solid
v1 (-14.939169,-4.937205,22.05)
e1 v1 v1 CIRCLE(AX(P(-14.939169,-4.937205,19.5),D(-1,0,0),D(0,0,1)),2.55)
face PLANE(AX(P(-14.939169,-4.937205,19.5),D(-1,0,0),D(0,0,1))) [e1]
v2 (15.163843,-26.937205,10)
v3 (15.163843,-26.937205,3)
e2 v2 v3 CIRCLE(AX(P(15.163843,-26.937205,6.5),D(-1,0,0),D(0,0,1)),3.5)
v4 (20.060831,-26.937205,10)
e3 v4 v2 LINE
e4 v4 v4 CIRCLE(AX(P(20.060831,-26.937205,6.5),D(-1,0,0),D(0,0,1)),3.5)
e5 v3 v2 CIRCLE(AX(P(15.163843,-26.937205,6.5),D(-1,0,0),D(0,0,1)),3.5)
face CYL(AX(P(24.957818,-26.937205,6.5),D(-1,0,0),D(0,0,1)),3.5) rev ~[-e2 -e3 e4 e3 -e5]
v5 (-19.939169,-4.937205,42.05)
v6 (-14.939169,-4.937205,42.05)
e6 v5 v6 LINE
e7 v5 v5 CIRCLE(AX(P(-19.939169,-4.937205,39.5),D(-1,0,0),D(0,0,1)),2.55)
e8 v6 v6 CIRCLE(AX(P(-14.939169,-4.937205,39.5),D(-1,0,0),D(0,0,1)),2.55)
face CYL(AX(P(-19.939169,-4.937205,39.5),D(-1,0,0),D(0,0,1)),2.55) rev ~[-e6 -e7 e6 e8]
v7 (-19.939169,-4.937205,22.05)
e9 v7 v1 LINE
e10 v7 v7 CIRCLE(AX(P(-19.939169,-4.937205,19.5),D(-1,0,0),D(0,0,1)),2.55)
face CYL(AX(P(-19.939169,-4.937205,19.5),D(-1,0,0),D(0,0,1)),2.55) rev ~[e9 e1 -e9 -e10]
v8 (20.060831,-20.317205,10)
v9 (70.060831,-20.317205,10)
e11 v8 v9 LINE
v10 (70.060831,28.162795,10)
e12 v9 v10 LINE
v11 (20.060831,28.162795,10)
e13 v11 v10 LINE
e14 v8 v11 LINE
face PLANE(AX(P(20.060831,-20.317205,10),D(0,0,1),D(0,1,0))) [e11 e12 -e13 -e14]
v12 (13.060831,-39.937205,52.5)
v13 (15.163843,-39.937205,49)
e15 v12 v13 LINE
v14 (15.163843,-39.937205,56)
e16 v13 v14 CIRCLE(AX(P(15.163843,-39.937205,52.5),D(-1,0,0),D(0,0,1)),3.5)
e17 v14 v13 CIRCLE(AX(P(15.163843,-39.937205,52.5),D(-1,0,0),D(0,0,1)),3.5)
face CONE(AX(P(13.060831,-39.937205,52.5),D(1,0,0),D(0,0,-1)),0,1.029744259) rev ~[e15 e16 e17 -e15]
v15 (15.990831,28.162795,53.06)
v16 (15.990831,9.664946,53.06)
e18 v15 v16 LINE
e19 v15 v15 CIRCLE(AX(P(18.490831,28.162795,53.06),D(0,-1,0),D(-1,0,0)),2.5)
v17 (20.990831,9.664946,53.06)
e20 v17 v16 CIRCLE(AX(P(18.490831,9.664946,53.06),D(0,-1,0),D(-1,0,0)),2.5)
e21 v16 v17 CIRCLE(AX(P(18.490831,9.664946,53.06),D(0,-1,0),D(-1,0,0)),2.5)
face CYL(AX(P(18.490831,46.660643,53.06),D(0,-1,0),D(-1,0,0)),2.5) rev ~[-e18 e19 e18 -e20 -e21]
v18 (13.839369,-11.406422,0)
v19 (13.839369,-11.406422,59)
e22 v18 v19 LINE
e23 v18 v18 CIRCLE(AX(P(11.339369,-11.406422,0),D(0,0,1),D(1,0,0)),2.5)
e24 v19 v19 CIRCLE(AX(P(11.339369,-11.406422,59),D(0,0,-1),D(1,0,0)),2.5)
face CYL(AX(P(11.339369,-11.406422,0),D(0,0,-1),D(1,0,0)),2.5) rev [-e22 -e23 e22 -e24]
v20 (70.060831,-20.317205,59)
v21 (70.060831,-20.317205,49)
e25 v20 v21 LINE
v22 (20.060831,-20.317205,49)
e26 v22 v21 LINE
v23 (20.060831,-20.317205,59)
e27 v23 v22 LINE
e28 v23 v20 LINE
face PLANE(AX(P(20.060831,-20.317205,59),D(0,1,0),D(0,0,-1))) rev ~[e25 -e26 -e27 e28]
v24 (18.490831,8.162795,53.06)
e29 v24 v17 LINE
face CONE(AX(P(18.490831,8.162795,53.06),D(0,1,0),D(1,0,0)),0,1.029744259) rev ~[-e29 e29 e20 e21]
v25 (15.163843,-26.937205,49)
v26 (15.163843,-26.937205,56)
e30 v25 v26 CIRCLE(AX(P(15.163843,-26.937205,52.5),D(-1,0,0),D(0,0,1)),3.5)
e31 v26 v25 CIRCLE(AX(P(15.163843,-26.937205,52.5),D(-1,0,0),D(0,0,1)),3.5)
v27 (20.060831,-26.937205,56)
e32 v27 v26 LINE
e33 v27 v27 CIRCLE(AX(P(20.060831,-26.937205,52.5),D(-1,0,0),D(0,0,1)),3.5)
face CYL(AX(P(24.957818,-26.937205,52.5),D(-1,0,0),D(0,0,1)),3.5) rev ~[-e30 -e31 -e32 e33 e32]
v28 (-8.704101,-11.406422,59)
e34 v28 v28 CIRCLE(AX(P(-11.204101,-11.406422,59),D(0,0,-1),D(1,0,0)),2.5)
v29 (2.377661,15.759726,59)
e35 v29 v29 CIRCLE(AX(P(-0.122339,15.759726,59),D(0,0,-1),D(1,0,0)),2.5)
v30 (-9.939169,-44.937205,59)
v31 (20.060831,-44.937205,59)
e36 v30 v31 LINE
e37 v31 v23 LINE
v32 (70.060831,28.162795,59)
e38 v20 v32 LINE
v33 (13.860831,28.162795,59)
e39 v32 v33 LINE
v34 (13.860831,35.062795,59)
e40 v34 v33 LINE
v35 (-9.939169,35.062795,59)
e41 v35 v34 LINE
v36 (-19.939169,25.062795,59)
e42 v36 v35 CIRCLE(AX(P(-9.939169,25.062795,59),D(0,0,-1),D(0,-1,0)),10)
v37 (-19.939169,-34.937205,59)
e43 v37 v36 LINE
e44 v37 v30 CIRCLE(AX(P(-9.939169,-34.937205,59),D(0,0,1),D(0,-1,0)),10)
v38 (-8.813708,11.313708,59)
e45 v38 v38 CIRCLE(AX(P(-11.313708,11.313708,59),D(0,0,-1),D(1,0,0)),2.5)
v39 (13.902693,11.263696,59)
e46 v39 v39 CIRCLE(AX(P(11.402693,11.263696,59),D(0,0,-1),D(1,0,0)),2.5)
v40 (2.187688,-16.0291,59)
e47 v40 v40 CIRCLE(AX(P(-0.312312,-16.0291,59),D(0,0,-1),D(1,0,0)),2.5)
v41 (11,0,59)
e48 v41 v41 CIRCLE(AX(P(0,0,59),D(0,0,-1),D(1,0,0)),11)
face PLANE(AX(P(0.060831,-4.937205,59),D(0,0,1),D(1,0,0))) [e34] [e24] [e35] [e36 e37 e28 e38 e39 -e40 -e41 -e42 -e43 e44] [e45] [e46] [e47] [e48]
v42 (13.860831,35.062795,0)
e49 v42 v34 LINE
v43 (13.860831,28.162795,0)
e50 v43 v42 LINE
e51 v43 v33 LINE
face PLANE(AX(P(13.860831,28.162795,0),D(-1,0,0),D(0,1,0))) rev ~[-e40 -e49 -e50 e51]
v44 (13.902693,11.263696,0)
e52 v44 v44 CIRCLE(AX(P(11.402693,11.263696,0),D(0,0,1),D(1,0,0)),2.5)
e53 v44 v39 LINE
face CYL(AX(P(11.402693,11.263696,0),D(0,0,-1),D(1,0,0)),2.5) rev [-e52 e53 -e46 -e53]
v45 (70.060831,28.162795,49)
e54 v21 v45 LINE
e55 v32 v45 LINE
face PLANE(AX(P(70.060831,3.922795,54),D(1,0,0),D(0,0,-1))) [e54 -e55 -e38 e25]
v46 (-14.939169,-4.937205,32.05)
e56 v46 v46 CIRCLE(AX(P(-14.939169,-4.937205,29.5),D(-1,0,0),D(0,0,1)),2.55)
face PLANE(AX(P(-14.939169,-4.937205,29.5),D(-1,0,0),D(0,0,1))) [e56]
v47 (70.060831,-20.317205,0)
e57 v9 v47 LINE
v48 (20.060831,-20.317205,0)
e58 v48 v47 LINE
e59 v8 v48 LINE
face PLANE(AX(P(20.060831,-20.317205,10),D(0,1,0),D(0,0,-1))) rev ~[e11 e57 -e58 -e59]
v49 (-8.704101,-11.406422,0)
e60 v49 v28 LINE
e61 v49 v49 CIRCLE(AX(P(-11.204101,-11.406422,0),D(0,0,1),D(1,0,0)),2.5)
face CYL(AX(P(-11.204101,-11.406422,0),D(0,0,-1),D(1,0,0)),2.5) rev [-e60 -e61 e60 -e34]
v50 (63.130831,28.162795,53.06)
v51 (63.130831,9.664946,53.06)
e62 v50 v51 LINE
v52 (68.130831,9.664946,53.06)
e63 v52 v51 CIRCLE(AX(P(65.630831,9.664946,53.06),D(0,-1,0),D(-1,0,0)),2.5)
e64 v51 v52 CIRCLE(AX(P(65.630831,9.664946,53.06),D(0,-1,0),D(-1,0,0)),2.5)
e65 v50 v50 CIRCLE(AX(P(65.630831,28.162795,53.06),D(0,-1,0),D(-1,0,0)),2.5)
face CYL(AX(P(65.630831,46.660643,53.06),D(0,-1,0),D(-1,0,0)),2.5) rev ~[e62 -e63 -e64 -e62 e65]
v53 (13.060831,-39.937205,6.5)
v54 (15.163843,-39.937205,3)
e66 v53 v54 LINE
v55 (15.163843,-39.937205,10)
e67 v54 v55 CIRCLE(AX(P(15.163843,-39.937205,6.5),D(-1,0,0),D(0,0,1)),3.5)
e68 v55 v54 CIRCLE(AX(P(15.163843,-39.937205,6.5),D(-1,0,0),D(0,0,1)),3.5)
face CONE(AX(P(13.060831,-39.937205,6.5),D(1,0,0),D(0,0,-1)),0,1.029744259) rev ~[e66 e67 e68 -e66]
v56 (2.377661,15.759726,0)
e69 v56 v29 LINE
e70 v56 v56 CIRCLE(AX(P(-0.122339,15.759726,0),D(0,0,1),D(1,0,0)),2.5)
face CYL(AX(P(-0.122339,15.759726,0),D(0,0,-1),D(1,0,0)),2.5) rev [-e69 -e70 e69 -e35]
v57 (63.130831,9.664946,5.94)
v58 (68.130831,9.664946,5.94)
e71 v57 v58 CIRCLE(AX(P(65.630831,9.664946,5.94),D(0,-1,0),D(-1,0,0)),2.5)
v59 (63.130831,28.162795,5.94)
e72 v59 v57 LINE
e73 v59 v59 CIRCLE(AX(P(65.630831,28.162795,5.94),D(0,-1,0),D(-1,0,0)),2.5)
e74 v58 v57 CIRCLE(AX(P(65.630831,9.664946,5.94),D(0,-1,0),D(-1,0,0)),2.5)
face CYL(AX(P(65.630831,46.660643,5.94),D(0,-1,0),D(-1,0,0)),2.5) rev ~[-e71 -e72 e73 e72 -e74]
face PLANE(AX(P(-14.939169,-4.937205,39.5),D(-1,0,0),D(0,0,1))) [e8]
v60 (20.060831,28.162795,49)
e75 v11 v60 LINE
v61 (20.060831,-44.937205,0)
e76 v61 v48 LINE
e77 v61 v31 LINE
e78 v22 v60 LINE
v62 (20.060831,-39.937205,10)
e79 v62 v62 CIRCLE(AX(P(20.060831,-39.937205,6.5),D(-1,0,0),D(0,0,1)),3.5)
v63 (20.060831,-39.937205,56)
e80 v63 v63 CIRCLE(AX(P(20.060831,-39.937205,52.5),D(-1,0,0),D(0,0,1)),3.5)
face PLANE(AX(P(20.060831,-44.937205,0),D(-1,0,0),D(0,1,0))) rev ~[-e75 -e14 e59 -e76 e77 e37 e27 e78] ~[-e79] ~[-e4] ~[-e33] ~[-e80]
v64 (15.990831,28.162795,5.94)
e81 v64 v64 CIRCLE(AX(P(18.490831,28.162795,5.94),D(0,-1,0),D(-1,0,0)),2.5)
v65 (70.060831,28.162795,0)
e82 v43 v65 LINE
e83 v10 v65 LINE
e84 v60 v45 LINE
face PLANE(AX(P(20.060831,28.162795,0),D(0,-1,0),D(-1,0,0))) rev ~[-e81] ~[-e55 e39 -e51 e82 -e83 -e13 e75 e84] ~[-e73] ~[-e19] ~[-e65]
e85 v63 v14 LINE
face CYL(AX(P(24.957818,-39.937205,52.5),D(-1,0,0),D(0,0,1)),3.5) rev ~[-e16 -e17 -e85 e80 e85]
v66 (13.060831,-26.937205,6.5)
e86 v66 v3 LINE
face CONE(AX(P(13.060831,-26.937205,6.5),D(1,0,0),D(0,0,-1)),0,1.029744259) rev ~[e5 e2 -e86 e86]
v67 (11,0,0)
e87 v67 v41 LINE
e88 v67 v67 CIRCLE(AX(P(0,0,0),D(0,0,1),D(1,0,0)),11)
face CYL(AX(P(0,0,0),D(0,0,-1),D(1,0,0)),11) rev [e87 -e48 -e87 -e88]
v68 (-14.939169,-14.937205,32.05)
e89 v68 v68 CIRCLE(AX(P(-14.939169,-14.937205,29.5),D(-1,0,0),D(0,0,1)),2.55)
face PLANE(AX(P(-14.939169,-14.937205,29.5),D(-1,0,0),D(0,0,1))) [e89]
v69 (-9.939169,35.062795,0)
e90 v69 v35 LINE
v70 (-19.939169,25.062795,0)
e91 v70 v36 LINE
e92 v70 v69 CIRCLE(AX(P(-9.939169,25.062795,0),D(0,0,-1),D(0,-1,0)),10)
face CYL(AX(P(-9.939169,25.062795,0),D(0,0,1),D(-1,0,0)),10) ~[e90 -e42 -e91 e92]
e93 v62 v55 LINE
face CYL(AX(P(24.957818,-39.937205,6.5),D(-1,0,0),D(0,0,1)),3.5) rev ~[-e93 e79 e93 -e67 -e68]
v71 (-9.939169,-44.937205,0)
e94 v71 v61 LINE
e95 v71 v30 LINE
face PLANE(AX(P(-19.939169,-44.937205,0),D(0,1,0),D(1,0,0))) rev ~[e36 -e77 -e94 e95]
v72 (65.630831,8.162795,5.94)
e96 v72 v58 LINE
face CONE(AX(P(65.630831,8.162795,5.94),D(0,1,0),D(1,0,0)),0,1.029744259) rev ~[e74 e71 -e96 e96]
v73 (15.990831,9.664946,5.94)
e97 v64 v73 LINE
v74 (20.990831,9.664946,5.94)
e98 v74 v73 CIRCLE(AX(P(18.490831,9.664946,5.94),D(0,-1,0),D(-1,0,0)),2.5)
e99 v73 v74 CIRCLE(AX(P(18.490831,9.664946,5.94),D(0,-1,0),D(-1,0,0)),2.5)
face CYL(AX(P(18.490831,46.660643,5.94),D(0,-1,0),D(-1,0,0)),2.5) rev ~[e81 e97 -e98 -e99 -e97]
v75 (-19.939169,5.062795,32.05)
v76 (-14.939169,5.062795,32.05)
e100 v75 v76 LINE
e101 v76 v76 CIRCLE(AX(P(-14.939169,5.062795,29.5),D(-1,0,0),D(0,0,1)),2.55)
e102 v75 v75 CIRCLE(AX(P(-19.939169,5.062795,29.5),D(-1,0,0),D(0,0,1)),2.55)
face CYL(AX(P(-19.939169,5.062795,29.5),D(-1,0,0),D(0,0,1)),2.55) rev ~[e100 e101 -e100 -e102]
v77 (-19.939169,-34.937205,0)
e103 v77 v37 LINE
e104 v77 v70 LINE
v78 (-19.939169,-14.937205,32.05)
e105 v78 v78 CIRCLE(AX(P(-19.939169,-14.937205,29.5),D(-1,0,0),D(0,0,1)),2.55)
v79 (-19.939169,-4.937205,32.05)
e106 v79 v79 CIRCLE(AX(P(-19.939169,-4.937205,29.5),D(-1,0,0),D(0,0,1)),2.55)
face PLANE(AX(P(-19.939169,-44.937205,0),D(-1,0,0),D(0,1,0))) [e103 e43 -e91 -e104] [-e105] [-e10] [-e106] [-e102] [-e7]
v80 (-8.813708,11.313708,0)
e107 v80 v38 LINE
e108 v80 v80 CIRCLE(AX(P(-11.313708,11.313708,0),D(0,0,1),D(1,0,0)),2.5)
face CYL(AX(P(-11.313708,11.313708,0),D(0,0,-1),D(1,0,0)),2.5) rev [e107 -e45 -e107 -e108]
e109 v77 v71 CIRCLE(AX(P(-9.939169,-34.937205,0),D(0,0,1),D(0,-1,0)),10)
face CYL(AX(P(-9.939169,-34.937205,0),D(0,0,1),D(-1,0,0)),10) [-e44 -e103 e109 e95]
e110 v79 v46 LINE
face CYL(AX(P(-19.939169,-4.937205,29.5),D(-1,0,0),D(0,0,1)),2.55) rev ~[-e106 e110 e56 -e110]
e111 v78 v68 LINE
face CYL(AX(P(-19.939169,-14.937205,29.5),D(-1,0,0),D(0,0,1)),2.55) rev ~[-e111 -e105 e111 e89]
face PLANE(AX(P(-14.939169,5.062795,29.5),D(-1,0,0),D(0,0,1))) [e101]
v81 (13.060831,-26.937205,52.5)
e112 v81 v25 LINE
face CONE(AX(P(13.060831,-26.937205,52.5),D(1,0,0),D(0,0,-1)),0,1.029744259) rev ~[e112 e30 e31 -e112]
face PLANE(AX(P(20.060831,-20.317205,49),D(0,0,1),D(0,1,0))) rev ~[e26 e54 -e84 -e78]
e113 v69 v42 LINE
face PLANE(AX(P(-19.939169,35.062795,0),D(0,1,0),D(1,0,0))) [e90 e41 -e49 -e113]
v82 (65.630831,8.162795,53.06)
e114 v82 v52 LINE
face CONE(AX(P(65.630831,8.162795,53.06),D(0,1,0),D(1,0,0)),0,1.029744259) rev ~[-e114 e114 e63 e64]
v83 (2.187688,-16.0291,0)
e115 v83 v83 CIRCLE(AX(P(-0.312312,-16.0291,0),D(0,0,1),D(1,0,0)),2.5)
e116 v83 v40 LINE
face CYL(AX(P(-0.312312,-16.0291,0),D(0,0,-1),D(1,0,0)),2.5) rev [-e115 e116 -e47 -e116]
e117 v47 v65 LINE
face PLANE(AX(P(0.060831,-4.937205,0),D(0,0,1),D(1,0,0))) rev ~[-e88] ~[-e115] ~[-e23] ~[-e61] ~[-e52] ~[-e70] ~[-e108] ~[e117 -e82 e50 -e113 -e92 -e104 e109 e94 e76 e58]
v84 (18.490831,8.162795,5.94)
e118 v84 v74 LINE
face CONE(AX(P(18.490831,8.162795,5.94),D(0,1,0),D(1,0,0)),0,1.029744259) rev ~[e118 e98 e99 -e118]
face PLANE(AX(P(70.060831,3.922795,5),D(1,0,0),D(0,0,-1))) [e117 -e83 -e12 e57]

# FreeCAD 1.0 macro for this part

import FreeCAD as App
import Part
import Sketcher

V = App.Vector


def edges_at(feature, points):
    """Names of the edges that pass closest to the given points."""
    edges = feature.Shape.Edges
    near = lambda p: min(range(len(edges)), key=lambda i: edges[i].distToShape(Part.Vertex(*p))[0])
    return sorted({f"Edge{near(p) + 1}" for p in points})


def add_polygon(sketch, points):
    """Adds a closed chain of lines whose ends are joined by coincident constraints."""
    first, n = sketch.GeometryCount, len(points)
    for a, b in zip(points, points[1:] + points[:1]):
        sketch.addGeometry(Part.LineSegment(App.Vector(*a, 0), App.Vector(*b, 0)), False)
    for i in range(n):
        sketch.addConstraint(Sketcher.Constraint("Coincident", first + i, 2, first + (i + 1) % n, 1))

doc = App.newDocument("Part")
body = doc.addObject("PartDesign::Body", "Body")

# Sketch on XY plane
sketch1 = doc.addObject("Sketcher::SketchObject", "Sketch")
body.addObject(sketch1)
sketch1.AttachmentSupport = (doc.XY_Plane, [""])
sketch1.MapMode = "FlatFace"
add_polygon(sketch1, [(-20, 35), (-20, -45), (20, -45), (20, 35)])  # lines 0-3
sketch1.addConstraint([
    Sketcher.Constraint("Vertical", 0),
    Sketcher.Constraint("Horizontal", 1),
    Sketcher.Constraint("Vertical", 2),
    Sketcher.Constraint("Horizontal", 3),
    Sketcher.Constraint("DistanceX", 1, 1, 1, 2, 40.0),
    Sketcher.Constraint("DistanceY", 0, 2, 0, 1, 80.0),
    Sketcher.Constraint("DistanceX", 0, 2, -1, 1, 19.939169),
    Sketcher.Constraint("DistanceY", 0, 2, -1, 1, 44.937205),
])
pad1 = doc.addObject("PartDesign::Pad", "Pad")
body.addObject(pad1)
pad1.Profile = sketch1
pad1.Length = 59

# Sketch on XY plane
sketch2 = doc.addObject("Sketcher::SketchObject", "Sketch001")
body.addObject(sketch2)
sketch2.AttachmentSupport = (doc.XY_Plane, [""])
sketch2.MapMode = "FlatFace"
sketch2.addGeometry([
    Part.Circle(V(0, 0, 0), V(0, 0, 1), 11),  # 0
    Part.Circle(V(-11.3, 11.3, 0), V(0, 0, 1), 2.5),  # 1
    Part.Circle(V(-0.1, 15.8, 0), V(0, 0, 1), 2.5),  # 2
    Part.Circle(V(11.4, 11.3, 0), V(0, 0, 1), 2.5),  # 3
    Part.Circle(V(11.3, -11.4, 0), V(0, 0, 1), 2.5),  # 4
    Part.Circle(V(-0.3, -16, 0), V(0, 0, 1), 2.5),  # 5
    Part.Circle(V(-11.2, -11.4, 0), V(0, 0, 1), 2.5),  # 6
], False)
sketch2.addConstraint([
    Sketcher.Constraint("Coincident", 0, 3, -1, 1),
    Sketcher.Constraint("Equal", 1, 2),
    Sketcher.Constraint("Equal", 2, 3),
    Sketcher.Constraint("Equal", 3, 4),
    Sketcher.Constraint("Equal", 4, 5),
    Sketcher.Constraint("Equal", 5, 6),
    Sketcher.Constraint("Horizontal", 4, 3, 6, 3),
    Sketcher.Constraint("Diameter", 0, 22.0),
    Sketcher.Constraint("Diameter", 1, 5.0),
    Sketcher.Constraint("DistanceY", 5, 3, -1, 1, 16.0291),
    Sketcher.Constraint("DistanceX", 6, 3, -1, 1, 11.204101),
    Sketcher.Constraint("DistanceX", 1, 3, 3, 3, 22.716402),
    Sketcher.Constraint("DistanceX", 1, 3, -1, 1, 11.313708),
    Sketcher.Constraint("DistanceY", -1, 1, 1, 3, 11.313708),
    Sketcher.Constraint("DistanceX", 2, 3, -1, 1, 0.122339),
    Sketcher.Constraint("DistanceX", -1, 1, 4, 3, 11.339369),
    Sketcher.Constraint("DistanceX", 5, 3, -1, 1, 0.312312),
    Sketcher.Constraint("DistanceY", 3, 3, 2, 3, 4.496029),
    Sketcher.Constraint("DistanceY", 4, 3, 3, 3, 22.670119),
    Sketcher.Constraint("DistanceY", 4, 3, 1, 3, 22.720131),
])
pocket1 = doc.addObject("PartDesign::Pocket", "Pocket")
body.addObject(pocket1)
pocket1.Profile = sketch2
pocket1.Type = "ThroughAll"
pocket1.Reversed = True

# Sketch on YZ plane
sketch3 = doc.addObject("Sketcher::SketchObject", "Sketch002")
body.addObject(sketch3)
sketch3.AttachmentSupport = (doc.YZ_Plane, [""])
sketch3.MapMode = "FlatFace"
sketch3.AttachmentOffset = App.Placement(V(0, 0, -19.939169), App.Rotation())
sketch3.addGeometry([
    Part.Circle(V(-4.9, 29.5, 0), V(0, 0, 1), 2.5),  # 0
    Part.Circle(V(-4.9, 39.5, 0), V(0, 0, 1), 2.5),  # 1
    Part.Circle(V(-4.9, 19.5, 0), V(0, 0, 1), 2.5),  # 2
    Part.Circle(V(5.1, 29.5, 0), V(0, 0, 1), 2.5),  # 3
    Part.Circle(V(-14.9, 29.5, 0), V(0, 0, 1), 2.5),  # 4
], False)
sketch3.addConstraint([
    Sketcher.Constraint("Equal", 0, 1),
    Sketcher.Constraint("Equal", 1, 2),
    Sketcher.Constraint("Equal", 2, 3),
    Sketcher.Constraint("Equal", 3, 4),
    Sketcher.Constraint("Horizontal", 0, 3, 3, 3),
    Sketcher.Constraint("Horizontal", 3, 3, 4, 3),
    Sketcher.Constraint("Vertical", 0, 3, 1, 3),
    Sketcher.Constraint("Vertical", 1, 3, 2, 3),
    Sketcher.Constraint("Diameter", 0, 5.1),
    Sketcher.Constraint("DistanceY", 0, 3, 1, 3, 10.0),
    Sketcher.Constraint("DistanceY", 2, 3, 0, 3, 10.0),
    Sketcher.Constraint("DistanceX", 0, 3, 3, 3, 10.0),
    Sketcher.Constraint("DistanceX", 4, 3, 0, 3, 10.0),
    Sketcher.Constraint("DistanceY", -1, 1, 0, 3, 29.5),
    Sketcher.Constraint("DistanceX", 0, 3, -1, 1, 4.937205),
])
pocket2 = doc.addObject("PartDesign::Pocket", "Pocket001")
body.addObject(pocket2)
pocket2.Profile = sketch3
pocket2.Length = 5
pocket2.Reversed = True
doc.recompute()

fillet = doc.addObject("PartDesign::Fillet", "Fillet")
body.addObject(fillet)
fillet.Base = (pocket2, edges_at(pocket2, [(-19.939, -44.937, 29.5)]))
fillet.Radius = 10
doc.recompute()

fillet2 = doc.addObject("PartDesign::Fillet", "Fillet001")
body.addObject(fillet2)
fillet2.Base = (fillet, edges_at(fillet, [(-19.939, 35.063, 29.5)]))
fillet2.Radius = 10

# Sketch on YZ plane
sketch4 = doc.addObject("Sketcher::SketchObject", "Sketch003")
body.addObject(sketch4)
sketch4.AttachmentSupport = (doc.YZ_Plane, [""])
sketch4.MapMode = "FlatFace"
sketch4.AttachmentOffset = App.Placement(V(0, 0, 20.060831), App.Rotation())
sketch4.addGeometry([
    Part.Circle(V(-26.9, 52.5, 0), V(0, 0, 1), 3.5),
    Part.Circle(V(-39.9, 52.5, 0), V(0, 0, 1), 3.5),
    Part.Circle(V(-39.9, 6.5, 0), V(0, 0, 1), 3.5),
    Part.Circle(V(-26.9, 6.5, 0), V(0, 0, 1), 3.5),
], False)
sketch4.addConstraint([
    Sketcher.Constraint("Equal", 0, 1),
    Sketcher.Constraint("Equal", 1, 2),
    Sketcher.Constraint("Equal", 2, 3),
    Sketcher.Constraint("Horizontal", 0, 3, 1, 3),
    Sketcher.Constraint("Horizontal", 2, 3, 3, 3),
    Sketcher.Constraint("Vertical", 1, 3, 2, 3),
    Sketcher.Constraint("Vertical", 0, 3, 3, 3),
    Sketcher.Constraint("Diameter", 0, 7.0),
    Sketcher.Constraint("DistanceX", 1, 3, 0, 3, 13.0),
    Sketcher.Constraint("DistanceY", 2, 3, 1, 3, 46.0),
    Sketcher.Constraint("DistanceY", -1, 1, 0, 3, 52.5),
    Sketcher.Constraint("DistanceX", 0, 3, -1, 1, 26.937205),
])
doc.recompute()
hole = doc.addObject("PartDesign::Hole", "Hole")
body.addObject(hole)
hole.Profile = sketch4
hole.ThreadType = "None"
hole.Diameter = 7
hole.DepthType = "Dimension"
hole.Depth = 4.896988
hole.DrillPoint = "Angled"
hole.DrillPointAngle = 118

# Sketch on YZ plane
sketch5 = doc.addObject("Sketcher::SketchObject", "Sketch004")
body.addObject(sketch5)
sketch5.AttachmentSupport = (doc.YZ_Plane, [""])
sketch5.MapMode = "FlatFace"
sketch5.AttachmentOffset = App.Placement(V(0, 0, 20.060831), App.Rotation())
add_polygon(sketch5, [(28, 10), (-20, 10), (-20, 0), (28, 0)])  # lines 0-3
add_polygon(sketch5, [(28, 59), (-20, 59), (-20, 49), (28, 49)])  # lines 4-7
sketch5.addConstraint([
    Sketcher.Constraint("Horizontal", 0),
    Sketcher.Constraint("Vertical", 1),
    Sketcher.Constraint("Horizontal", 2),
    Sketcher.Constraint("Vertical", 3),
    Sketcher.Constraint("Horizontal", 4),
    Sketcher.Constraint("Vertical", 5),
    Sketcher.Constraint("Horizontal", 6),
    Sketcher.Constraint("Vertical", 7),
    Sketcher.Constraint("PointOnObject", 1, 2, -1),
    Sketcher.Constraint("Vertical", 1, 2, 4, 2),
    Sketcher.Constraint("Vertical", 3, 2, 6, 2),
    Sketcher.Constraint("Equal", 3, 5),
    Sketcher.Constraint("DistanceY", 1, 2, 1, 1, 10.0),
    Sketcher.Constraint("DistanceY", -1, 1, 4, 2, 59.0),
    Sketcher.Constraint("DistanceX", 0, 2, 0, 1, 48.48),
    Sketcher.Constraint("DistanceX", 0, 2, -1, 1, 20.317205),
])
pad2 = doc.addObject("PartDesign::Pad", "Pad001")
body.addObject(pad2)
pad2.Profile = sketch5
pad2.Length = 50

# Sketch on XY plane
sketch6 = doc.addObject("Sketcher::SketchObject", "Sketch005")
body.addObject(sketch6)
sketch6.AttachmentSupport = (doc.XY_Plane, [""])
sketch6.MapMode = "FlatFace"
add_polygon(sketch6, [(20, 35), (20, 28), (14, 28), (14, 35)])  # lines 0-3
sketch6.addConstraint([
    Sketcher.Constraint("Vertical", 0),
    Sketcher.Constraint("Horizontal", 1),
    Sketcher.Constraint("Vertical", 2),
    Sketcher.Constraint("Horizontal", 3),
    Sketcher.Constraint("DistanceX", 1, 2, 1, 1, 6.2),
    Sketcher.Constraint("DistanceY", 0, 2, 0, 1, 6.9),
    Sketcher.Constraint("DistanceX", -1, 1, 0, 2, 20.060831),
    Sketcher.Constraint("DistanceY", -1, 1, 0, 2, 28.162795),
])
pocket3 = doc.addObject("PartDesign::Pocket", "Pocket002")
body.addObject(pocket3)
pocket3.Profile = sketch6
pocket3.Type = "ThroughAll"
pocket3.Reversed = True

# Sketch on XZ plane
sketch7 = doc.addObject("Sketcher::SketchObject", "Sketch006")
body.addObject(sketch7)
sketch7.AttachmentSupport = (doc.XZ_Plane, [""])
sketch7.MapMode = "FlatFace"
sketch7.AttachmentOffset = App.Placement(V(0, 0, -28.162795), App.Rotation())
sketch7.addGeometry([
    Part.Circle(V(18.5, 5.9, 0), V(0, 0, 1), 2.5),
    Part.Circle(V(65.6, 5.9, 0), V(0, 0, 1), 2.5),
    Part.Circle(V(65.6, 53.1, 0), V(0, 0, 1), 2.5),
    Part.Circle(V(18.5, 53.1, 0), V(0, 0, 1), 2.5),
], False)
sketch7.addConstraint([
    Sketcher.Constraint("Equal", 0, 1),
    Sketcher.Constraint("Equal", 1, 2),
    Sketcher.Constraint("Equal", 2, 3),
    Sketcher.Constraint("Horizontal", 0, 3, 1, 3),
    Sketcher.Constraint("Horizontal", 2, 3, 3, 3),
    Sketcher.Constraint("Vertical", 1, 3, 2, 3),
    Sketcher.Constraint("Vertical", 0, 3, 3, 3),
    Sketcher.Constraint("Diameter", 0, 5.0),
    Sketcher.Constraint("DistanceY", -1, 1, 0, 3, 5.94),
    Sketcher.Constraint("DistanceY", -1, 1, 2, 3, 53.06),
    Sketcher.Constraint("DistanceX", 0, 3, 1, 3, 47.14),
    Sketcher.Constraint("DistanceX", -1, 1, 0, 3, 18.490831),
])
doc.recompute()
hole2 = doc.addObject("PartDesign::Hole", "Hole001")
body.addObject(hole2)
hole2.Profile = sketch7
hole2.ThreadType = "None"
hole2.Diameter = 5
hole2.DepthType = "Dimension"
hole2.Depth = 18.497848
hole2.DrillPoint = "Angled"
hole2.DrillPointAngle = 118
hole2.Reversed = True

doc.recompute()
